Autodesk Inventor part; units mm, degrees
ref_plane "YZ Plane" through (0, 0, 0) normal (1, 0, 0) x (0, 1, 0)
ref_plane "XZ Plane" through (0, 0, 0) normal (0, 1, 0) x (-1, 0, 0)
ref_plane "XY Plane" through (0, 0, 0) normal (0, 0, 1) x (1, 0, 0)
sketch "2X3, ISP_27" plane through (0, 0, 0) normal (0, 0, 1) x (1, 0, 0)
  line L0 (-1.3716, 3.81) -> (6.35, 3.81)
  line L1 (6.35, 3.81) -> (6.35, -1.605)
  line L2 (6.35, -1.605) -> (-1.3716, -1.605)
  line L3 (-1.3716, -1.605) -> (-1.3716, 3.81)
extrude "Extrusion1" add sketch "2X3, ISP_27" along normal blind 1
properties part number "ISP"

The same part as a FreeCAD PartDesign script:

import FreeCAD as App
import Part
import Sketcher

V = App.Vector


def add_polygon(sketch, points):
    """Adds a closed chain of lines whose ends are joined by coincident constraints."""
    first, n = sketch.GeometryCount, len(points)
    for a, b in zip(points, points[1:] + points[:1]):
        sketch.addGeometry(Part.LineSegment(App.Vector(*a, 0), App.Vector(*b, 0)), False)
    for i in range(n):
        sketch.addConstraint(Sketcher.Constraint("Coincident", first + i, 2, first + (i + 1) % n, 1))

doc = App.newDocument("Part")
body = doc.addObject("PartDesign::Body", "Body")

# Sketch on XY plane
sketch1 = body.newObject("Sketcher::SketchObject", "Sketch")
sketch1.AttachmentSupport = (doc.getObject("XY_Plane"), [""])
sketch1.MapMode = "FlatFace"
add_polygon(sketch1, [(6.35, 3.81), (-1.3716, 3.81), (-1.3716, -1.605), (6.35, -1.605)])  # lines 0-3
sketch1.addConstraint(Sketcher.Constraint("Horizontal", 0))
sketch1.addConstraint(Sketcher.Constraint("Vertical", 1))
sketch1.addConstraint(Sketcher.Constraint("Horizontal", 2))
sketch1.addConstraint(Sketcher.Constraint("Vertical", 3))
sketch1.addConstraint(Sketcher.Constraint("DistanceY", 1, 2, 1, 1, 5.415))
sketch1.addConstraint(Sketcher.Constraint("DistanceY", -1, 1, 0, 2, 3.81))
sketch1.addConstraint(Sketcher.Constraint("DistanceX", -1, 1, 2, 2, 6.35))
sketch1.addConstraint(Sketcher.Constraint("DistanceX", 0, 2, 0, 1, 7.7216))
pad1 = body.newObject("PartDesign::Pad", "Pad")
pad1.Profile = sketch1
pad1.Length = 1

doc.recompute()
